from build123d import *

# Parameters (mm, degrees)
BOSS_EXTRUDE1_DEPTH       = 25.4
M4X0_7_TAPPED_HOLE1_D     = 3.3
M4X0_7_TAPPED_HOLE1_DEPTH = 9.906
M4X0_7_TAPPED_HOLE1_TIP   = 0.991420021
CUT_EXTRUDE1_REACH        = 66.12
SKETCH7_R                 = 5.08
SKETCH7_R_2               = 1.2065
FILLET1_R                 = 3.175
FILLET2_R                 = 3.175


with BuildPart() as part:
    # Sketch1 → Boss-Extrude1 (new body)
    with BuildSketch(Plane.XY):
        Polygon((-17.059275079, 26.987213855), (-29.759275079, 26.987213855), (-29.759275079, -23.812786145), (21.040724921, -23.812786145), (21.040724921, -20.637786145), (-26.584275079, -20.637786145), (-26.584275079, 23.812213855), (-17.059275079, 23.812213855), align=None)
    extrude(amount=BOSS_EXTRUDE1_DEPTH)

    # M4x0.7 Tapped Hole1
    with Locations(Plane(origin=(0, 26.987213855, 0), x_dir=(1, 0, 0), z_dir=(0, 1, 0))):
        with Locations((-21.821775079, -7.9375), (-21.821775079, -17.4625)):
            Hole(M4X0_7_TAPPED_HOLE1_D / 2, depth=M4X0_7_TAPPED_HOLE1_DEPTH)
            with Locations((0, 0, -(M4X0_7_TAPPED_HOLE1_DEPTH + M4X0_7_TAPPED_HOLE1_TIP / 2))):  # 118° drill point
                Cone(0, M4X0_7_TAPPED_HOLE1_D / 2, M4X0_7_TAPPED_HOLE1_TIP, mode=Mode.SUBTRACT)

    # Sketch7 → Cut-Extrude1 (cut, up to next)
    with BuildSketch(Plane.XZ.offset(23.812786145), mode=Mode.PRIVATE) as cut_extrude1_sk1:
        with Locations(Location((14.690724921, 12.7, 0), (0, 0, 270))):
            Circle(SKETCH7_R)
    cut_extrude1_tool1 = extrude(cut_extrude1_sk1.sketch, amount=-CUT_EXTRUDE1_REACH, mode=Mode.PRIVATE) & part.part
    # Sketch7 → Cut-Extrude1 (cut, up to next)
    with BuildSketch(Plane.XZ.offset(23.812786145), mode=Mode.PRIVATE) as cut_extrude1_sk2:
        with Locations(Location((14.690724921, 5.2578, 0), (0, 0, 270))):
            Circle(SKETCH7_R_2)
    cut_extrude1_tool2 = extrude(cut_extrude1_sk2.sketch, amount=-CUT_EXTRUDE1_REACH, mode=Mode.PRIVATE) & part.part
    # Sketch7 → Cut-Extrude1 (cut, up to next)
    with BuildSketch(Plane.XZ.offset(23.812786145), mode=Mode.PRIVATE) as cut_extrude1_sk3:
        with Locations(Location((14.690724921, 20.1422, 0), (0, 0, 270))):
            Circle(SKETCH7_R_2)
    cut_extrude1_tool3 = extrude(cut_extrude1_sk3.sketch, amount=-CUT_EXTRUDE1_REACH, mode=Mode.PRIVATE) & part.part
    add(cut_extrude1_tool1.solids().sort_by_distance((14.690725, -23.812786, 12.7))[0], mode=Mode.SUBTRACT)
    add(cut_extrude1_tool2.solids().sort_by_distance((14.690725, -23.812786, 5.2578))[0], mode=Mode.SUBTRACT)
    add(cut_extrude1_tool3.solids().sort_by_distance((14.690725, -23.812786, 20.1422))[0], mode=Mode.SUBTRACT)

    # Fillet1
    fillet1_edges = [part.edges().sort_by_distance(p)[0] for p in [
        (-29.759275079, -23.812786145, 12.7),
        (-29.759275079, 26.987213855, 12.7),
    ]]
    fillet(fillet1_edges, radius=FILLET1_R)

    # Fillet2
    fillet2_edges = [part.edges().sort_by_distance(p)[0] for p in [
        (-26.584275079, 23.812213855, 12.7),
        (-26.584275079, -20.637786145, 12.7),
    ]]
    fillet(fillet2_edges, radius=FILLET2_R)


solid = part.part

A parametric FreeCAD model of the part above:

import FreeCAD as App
import Part
import Sketcher

V = App.Vector
Q = App.Units.Quantity


def edges_at(feature, points):
    """Names of the edges that pass closest to the given points."""
    edges = feature.Shape.Edges
    near = lambda p: min(range(len(edges)), key=lambda i: edges[i].distToShape(Part.Vertex(*p))[0])
    return sorted({f"Edge{near(p) + 1}" for p in points})

doc = App.newDocument("Part")
body = doc.addObject("PartDesign::Body", "Body")

# Sketch on XY plane
sketch1 = body.newObject("Sketcher::SketchObject", "Sketch")
sketch1.AttachmentSupport = (doc.getObject("XY_Plane"), [""])
sketch1.MapMode = "FlatFace"
sketch1.addGeometry(Part.LineSegment(V(-17.1, 27, 0), V(-29.8, 27, 0)), False)
sketch1.addGeometry(Part.LineSegment(V(-29.8, 27, 0), V(-29.8, -23.8, 0)), False)
sketch1.addGeometry(Part.LineSegment(V(-29.8, -23.8, 0), V(21, -23.8, 0)), False)
sketch1.addGeometry(Part.LineSegment(V(21, -23.8, 0), V(21, -20.6, 0)), False)
sketch1.addGeometry(Part.LineSegment(V(21, -20.6, 0), V(-26.6, -20.6, 0)), False)
sketch1.addGeometry(Part.LineSegment(V(-26.6, -20.6, 0), V(-26.6, 23.8, 0)), False)
sketch1.addGeometry(Part.LineSegment(V(-26.6, 23.8, 0), V(-17.1, 23.8, 0)), False)
sketch1.addGeometry(Part.LineSegment(V(-17.1, 23.8, 0), V(-17.1, 27, 0)), False)
sketch1.addConstraint(Sketcher.Constraint("Coincident", 0, 2, 1, 1))
sketch1.addConstraint(Sketcher.Constraint("Coincident", 1, 2, 2, 1))
sketch1.addConstraint(Sketcher.Constraint("Coincident", 2, 2, 3, 1))
sketch1.addConstraint(Sketcher.Constraint("Coincident", 3, 2, 4, 1))
sketch1.addConstraint(Sketcher.Constraint("Coincident", 4, 2, 5, 1))
sketch1.addConstraint(Sketcher.Constraint("Coincident", 5, 2, 6, 1))
sketch1.addConstraint(Sketcher.Constraint("Coincident", 6, 2, 7, 1))
sketch1.addConstraint(Sketcher.Constraint("Coincident", 7, 2, 0, 1))
sketch1.addConstraint(Sketcher.Constraint("Horizontal", 0))
sketch1.addConstraint(Sketcher.Constraint("Vertical", 1))
sketch1.addConstraint(Sketcher.Constraint("Horizontal", 2))
sketch1.addConstraint(Sketcher.Constraint("Vertical", 3))
sketch1.addConstraint(Sketcher.Constraint("Horizontal", 4))
sketch1.addConstraint(Sketcher.Constraint("Vertical", 5))
sketch1.addConstraint(Sketcher.Constraint("Horizontal", 6))
sketch1.addConstraint(Sketcher.Constraint("Vertical", 7))
sketch1.addConstraint(Sketcher.Constraint("Equal", 2, 1))
sketch1.addConstraint(Sketcher.Constraint("Equal", 3, 7))
sketch1.addConstraint(Sketcher.Constraint("DistanceX", 2, 1, 2, 2, Q("2 in")))
sketch1.addConstraint(Sketcher.Constraint("DistanceX", 0, 2, 0, 1, Q("0.5 in")))
sketch1.addConstraint(Sketcher.Constraint("DistanceY", 5, 1, 5, 2, Q("1.75 in")))
sketch1.addConstraint(Sketcher.Constraint("DistanceX", 4, 2, 4, 1, Q("1.875 in")))
sketch1.addConstraint(Sketcher.Constraint("DistanceX", 0, 2, -1, 1, Q("29.759275 mm")))
sketch1.addConstraint(Sketcher.Constraint("DistanceY", -1, 1, 0, 2, Q("26.987214 mm")))
pad1 = body.newObject("PartDesign::Pad", "Pad")
pad1.Profile = sketch1
pad1.Length = Q("1 in")

# Sketch on XZ plane
sketch2 = body.newObject("Sketcher::SketchObject", "Sketch001")
sketch2.AttachmentSupport = (doc.getObject("XZ_Plane"), [""])
sketch2.MapMode = "FlatFace"
sketch2.AttachmentOffset = App.Placement(V(0, 0, -26.987214), App.Rotation())
sketch2.addGeometry(Part.Circle(V(-21.8, 7.9, 0), V(0, 0, 1), 1.6), False)
sketch2.addGeometry(Part.Circle(V(-21.8, 17.5, 0), V(0, 0, 1), 1.6), False)
sketch2.addConstraint(Sketcher.Constraint("Equal", 0, 1))
sketch2.addConstraint(Sketcher.Constraint("Vertical", 0, 3, 1, 3))
sketch2.addConstraint(Sketcher.Constraint("Diameter", 0, Q("3.3 mm")))
sketch2.addConstraint(Sketcher.Constraint("DistanceY", -1, 1, 0, 3, Q("0.3125 in")))
sketch2.addConstraint(Sketcher.Constraint("DistanceY", -1, 1, 1, 3, Q("0.6875 in")))
sketch2.addConstraint(Sketcher.Constraint("DistanceX", 0, 3, -1, 1, Q("21.821775 mm")))
doc.recompute()
hole = body.newObject("PartDesign::Hole", "Hole")
hole.Profile = sketch2
hole.ThreadType = "None"
hole.Diameter = 3.3
hole.DepthType = "Dimension"
hole.Depth = Q("0.39 in")
hole.DrillPoint = "Angled"
hole.DrillPointAngle = 118
hole.Reversed = True

# Sketch on XZ plane
sketch3 = body.newObject("Sketcher::SketchObject", "Sketch002")
sketch3.AttachmentSupport = (doc.getObject("XZ_Plane"), [""])
sketch3.MapMode = "FlatFace"
sketch3.AttachmentOffset = App.Placement(V(0, 0, 23.812786), App.Rotation())
sketch3.addGeometry(Part.Circle(V(15, 13, 0), V(0, 0, 1), 5), False)
sketch3.addConstraint(Sketcher.Constraint("Diameter", 0, Q("0.4 in")))
sketch3.addConstraint(Sketcher.Constraint("DistanceY", -1, 1, 0, 3, Q("0.5 in")))
sketch3.addConstraint(Sketcher.Constraint("DistanceX", -1, 1, 0, 3, Q("14.690725 mm")))
pocket1 = body.newObject("PartDesign::Pocket", "Pocket")
pocket1.Profile = sketch3
pocket1.Type = "UpToFirst"

# Sketch on XZ plane
sketch4 = body.newObject("Sketcher::SketchObject", "Sketch003")
sketch4.AttachmentSupport = (doc.getObject("XZ_Plane"), [""])
sketch4.MapMode = "FlatFace"
sketch4.AttachmentOffset = App.Placement(V(0, 0, 23.812786), App.Rotation())
sketch4.addGeometry(Part.Circle(V(14.7, 5.3, 0), V(0, 0, 1), 1.2), False)
sketch4.addConstraint(Sketcher.Constraint("Diameter", 0, Q("0.095 in")))
sketch4.addConstraint(Sketcher.Constraint("DistanceY", -1, 1, 0, 3, Q("0.207 in")))
sketch4.addConstraint(Sketcher.Constraint("DistanceX", -1, 1, 0, 3, Q("14.690725 mm")))
pocket2 = body.newObject("PartDesign::Pocket", "Pocket001")
pocket2.Profile = sketch4
pocket2.Type = "UpToFirst"

# Sketch on XZ plane
sketch5 = body.newObject("Sketcher::SketchObject", "Sketch004")
sketch5.AttachmentSupport = (doc.getObject("XZ_Plane"), [""])
sketch5.MapMode = "FlatFace"
sketch5.AttachmentOffset = App.Placement(V(0, 0, 23.812786), App.Rotation())
sketch5.addGeometry(Part.Circle(V(14.7, 20.1, 0), V(0, 0, 1), 1.2), False)
sketch5.addConstraint(Sketcher.Constraint("Diameter", 0, Q("0.095 in")))
sketch5.addConstraint(Sketcher.Constraint("DistanceY", -1, 1, 0, 3, Q("0.793 in")))
sketch5.addConstraint(Sketcher.Constraint("DistanceX", -1, 1, 0, 3, Q("14.690725 mm")))
pocket3 = body.newObject("PartDesign::Pocket", "Pocket002")
pocket3.Profile = sketch5
pocket3.Type = "UpToFirst"
doc.recompute()

fillet = body.newObject("PartDesign::Fillet", "Fillet")
fillet.Base = (pocket3, edges_at(pocket3, [(-29.759, -23.813, 12.7), (-29.759, 26.987, 12.7)]))
fillet.Radius = Q("0.125 in")
doc.recompute()

fillet2 = body.newObject("PartDesign::Fillet", "Fillet001")
fillet2.Base = (fillet, edges_at(fillet, [(-26.584, 23.812, 12.7), (-26.584, -20.638, 12.7)]))
fillet2.Radius = Q("0.125 in")

doc.recompute()
